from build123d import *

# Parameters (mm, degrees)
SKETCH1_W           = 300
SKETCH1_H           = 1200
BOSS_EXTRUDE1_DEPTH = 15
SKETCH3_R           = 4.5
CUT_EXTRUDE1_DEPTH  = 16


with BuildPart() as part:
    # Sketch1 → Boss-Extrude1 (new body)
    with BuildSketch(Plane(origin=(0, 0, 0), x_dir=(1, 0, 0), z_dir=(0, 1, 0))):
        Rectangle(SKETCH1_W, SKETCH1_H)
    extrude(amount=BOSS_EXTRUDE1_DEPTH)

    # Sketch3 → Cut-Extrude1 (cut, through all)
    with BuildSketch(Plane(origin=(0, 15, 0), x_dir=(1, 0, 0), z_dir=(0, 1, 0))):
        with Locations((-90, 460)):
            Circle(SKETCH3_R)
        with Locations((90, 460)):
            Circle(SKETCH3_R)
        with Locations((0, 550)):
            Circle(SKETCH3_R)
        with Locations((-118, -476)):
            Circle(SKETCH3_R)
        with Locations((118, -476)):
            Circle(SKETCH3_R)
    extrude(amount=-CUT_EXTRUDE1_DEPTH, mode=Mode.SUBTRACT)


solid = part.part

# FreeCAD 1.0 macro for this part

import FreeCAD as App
import Part
import Sketcher

V = App.Vector
Q = App.Units.Quantity


def add_polygon(sketch, points):
    """Adds a closed chain of lines whose ends are joined by coincident constraints."""
    first, n = sketch.GeometryCount, len(points)
    for a, b in zip(points, points[1:] + points[:1]):
        sketch.addGeometry(Part.LineSegment(App.Vector(*a, 0), App.Vector(*b, 0)), False)
    for i in range(n):
        sketch.addConstraint(Sketcher.Constraint("Coincident", first + i, 2, first + (i + 1) % n, 1))

doc = App.newDocument("Part")
body = doc.addObject("PartDesign::Body", "Body")

# Sketch on XZ plane
sketch1 = body.newObject("Sketcher::SketchObject", "Sketch")
sketch1.AttachmentSupport = (doc.getObject("XZ_Plane"), [""])
sketch1.MapMode = "FlatFace"
add_polygon(sketch1, [(-150, -600), (-150, 600), (150, 600), (150, -600)])  # lines 0-3
sketch1.addConstraint([
    Sketcher.Constraint("Vertical", 0),
    Sketcher.Constraint("Horizontal", 1),
    Sketcher.Constraint("Vertical", 2),
    Sketcher.Constraint("Horizontal", 3),
    Sketcher.Constraint("Symmetric", 0, 2, 2, 2, -1, 1),
    Sketcher.Constraint("DistanceX", 1, 1, 1, 2, Q("300 mm")),
    Sketcher.Constraint("DistanceY", 0, 1, 0, 2, Q("1200 mm")),
])
pad1 = body.newObject("PartDesign::Pad", "Pad")
pad1.Profile = sketch1
pad1.Length = 15
pad1.Reversed = True

# Sketch on XZ plane
sketch2 = body.newObject("Sketcher::SketchObject", "Sketch001")
sketch2.AttachmentSupport = (doc.getObject("XZ_Plane"), [""])
sketch2.MapMode = "FlatFace"
sketch2.AttachmentOffset = App.Placement(V(0, 0, -15), App.Rotation())
sketch2.addGeometry([
    Part.Circle(V(-90, -460, 0), V(0, 0, 1), 4.5),  # 0
    Part.Circle(V(90, -460, 0), V(0, 0, 1), 4.5),  # 1
    Part.Circle(V(0, -550, 0), V(0, 0, 1), 4.5),  # 2
    Part.Circle(V(-118, 476, 0), V(0, 0, 1), 4.5),  # 3
    Part.Circle(V(118, 476, 0), V(0, 0, 1), 4.5),  # 4
], False)
sketch2.addConstraint([
    Sketcher.Constraint("Equal", 0, 1),
    Sketcher.Constraint("Equal", 1, 2),
    Sketcher.Constraint("Equal", 2, 3),
    Sketcher.Constraint("Equal", 3, 4),
    Sketcher.Constraint("Symmetric", 0, 3, 1, 3, -2),
    Sketcher.Constraint("Symmetric", 3, 3, 4, 3, -2),
    Sketcher.Constraint("PointOnObject", 2, 3, -2),
    Sketcher.Constraint("Diameter", 0, Q("9 mm")),
    Sketcher.Constraint("DistanceX", 0, 3, -1, 1, Q("90 mm")),
    Sketcher.Constraint("DistanceY", 0, 3, -1, 1, Q("460 mm")),
    Sketcher.Constraint("DistanceY", 2, 3, -1, 1, Q("550 mm")),
    Sketcher.Constraint("DistanceX", 3, 3, -1, 1, Q("118 mm")),
    Sketcher.Constraint("DistanceY", -1, 1, 3, 3, Q("476 mm")),
])
pocket1 = body.newObject("PartDesign::Pocket", "Pocket")
pocket1.Profile = sketch2
pocket1.Type = "ThroughAll"
pocket1.Reversed = True

doc.recompute()
